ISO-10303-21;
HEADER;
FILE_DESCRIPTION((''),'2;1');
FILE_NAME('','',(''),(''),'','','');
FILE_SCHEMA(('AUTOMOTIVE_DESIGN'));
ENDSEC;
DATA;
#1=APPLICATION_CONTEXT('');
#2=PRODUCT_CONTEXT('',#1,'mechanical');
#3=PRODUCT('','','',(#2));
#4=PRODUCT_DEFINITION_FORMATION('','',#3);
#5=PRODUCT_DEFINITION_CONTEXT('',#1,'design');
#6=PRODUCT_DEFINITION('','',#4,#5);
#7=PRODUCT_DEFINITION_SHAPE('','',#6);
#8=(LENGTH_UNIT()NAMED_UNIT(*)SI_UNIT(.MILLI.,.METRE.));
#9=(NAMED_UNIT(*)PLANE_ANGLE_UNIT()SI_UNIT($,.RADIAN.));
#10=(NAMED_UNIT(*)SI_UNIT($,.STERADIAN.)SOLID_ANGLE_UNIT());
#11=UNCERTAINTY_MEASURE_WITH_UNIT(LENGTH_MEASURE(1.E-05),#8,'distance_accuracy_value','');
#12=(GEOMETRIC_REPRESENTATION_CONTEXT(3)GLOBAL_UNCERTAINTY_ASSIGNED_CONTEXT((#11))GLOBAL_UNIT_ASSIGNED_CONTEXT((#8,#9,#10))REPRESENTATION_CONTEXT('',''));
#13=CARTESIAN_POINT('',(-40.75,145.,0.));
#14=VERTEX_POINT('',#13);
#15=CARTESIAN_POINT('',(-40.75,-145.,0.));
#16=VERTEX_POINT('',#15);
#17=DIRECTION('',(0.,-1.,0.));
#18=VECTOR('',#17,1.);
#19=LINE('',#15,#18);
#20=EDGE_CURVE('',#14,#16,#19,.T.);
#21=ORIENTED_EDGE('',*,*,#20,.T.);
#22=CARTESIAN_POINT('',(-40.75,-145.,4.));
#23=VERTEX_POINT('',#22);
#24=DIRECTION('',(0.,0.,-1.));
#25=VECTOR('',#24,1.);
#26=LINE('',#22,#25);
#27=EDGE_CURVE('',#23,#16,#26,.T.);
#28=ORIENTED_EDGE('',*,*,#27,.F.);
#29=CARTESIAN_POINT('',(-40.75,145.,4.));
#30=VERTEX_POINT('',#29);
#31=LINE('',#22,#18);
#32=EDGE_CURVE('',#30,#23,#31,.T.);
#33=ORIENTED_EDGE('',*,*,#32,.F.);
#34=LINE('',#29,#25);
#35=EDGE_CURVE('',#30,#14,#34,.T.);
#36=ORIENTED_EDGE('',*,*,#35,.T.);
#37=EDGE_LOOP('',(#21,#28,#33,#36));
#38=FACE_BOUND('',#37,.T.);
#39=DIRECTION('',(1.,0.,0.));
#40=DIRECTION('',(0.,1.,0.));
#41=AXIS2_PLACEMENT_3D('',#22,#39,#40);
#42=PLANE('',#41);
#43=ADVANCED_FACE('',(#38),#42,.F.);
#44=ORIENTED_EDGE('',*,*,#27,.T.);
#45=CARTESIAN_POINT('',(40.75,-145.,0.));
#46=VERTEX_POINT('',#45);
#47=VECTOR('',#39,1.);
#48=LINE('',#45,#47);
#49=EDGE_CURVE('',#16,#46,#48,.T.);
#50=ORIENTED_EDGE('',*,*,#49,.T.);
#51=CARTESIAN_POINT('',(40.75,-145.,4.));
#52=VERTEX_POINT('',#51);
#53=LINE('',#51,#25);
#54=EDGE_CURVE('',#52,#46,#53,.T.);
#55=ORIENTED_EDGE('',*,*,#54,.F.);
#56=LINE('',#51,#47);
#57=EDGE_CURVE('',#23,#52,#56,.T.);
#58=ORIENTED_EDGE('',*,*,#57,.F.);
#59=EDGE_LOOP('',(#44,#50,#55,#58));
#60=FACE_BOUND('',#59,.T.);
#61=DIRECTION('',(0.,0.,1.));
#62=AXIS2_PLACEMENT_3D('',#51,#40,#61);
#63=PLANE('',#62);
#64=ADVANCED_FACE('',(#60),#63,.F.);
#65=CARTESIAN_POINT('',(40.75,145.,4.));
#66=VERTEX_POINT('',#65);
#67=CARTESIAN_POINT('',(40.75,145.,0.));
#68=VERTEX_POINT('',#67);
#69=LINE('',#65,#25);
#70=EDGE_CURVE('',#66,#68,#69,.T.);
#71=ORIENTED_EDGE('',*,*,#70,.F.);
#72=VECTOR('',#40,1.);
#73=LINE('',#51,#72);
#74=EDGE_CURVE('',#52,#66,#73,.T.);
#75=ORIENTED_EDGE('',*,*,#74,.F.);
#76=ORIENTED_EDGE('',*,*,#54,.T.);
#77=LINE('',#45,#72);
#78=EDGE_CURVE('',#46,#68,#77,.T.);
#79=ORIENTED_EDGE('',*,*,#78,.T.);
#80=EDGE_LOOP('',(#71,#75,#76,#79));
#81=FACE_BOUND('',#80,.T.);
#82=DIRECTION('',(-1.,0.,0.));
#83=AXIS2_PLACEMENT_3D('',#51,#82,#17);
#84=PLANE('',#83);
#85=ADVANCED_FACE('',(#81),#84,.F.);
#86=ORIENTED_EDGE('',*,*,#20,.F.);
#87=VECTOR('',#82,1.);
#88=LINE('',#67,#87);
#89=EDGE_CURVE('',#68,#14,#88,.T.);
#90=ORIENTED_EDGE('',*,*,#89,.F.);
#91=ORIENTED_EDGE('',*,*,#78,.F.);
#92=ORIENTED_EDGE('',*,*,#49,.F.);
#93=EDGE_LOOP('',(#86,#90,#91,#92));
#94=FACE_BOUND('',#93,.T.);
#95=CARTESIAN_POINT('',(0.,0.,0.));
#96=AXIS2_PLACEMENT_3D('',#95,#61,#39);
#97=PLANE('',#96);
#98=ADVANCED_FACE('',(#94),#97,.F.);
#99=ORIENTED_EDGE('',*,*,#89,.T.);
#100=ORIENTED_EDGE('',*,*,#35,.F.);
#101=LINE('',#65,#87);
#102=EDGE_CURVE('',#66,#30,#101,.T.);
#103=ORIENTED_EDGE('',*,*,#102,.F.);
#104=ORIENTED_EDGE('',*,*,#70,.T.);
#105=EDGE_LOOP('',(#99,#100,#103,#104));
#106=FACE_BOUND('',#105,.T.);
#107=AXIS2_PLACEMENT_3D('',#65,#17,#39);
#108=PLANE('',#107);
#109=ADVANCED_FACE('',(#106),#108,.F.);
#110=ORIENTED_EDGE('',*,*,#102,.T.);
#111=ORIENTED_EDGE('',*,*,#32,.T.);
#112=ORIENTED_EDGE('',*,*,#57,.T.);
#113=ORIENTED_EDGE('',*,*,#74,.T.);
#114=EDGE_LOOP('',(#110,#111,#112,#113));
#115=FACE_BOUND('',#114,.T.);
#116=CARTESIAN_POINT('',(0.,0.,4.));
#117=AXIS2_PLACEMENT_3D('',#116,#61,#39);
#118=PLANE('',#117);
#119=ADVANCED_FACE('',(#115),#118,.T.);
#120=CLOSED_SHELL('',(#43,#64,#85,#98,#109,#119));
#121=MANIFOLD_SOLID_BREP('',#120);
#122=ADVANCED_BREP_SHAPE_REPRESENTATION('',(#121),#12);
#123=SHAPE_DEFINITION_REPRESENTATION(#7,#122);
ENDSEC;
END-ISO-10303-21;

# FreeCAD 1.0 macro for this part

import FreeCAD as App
import Part
import Sketcher

V = App.Vector


def add_polygon(sketch, points):
    """Adds a closed chain of lines whose ends are joined by coincident constraints."""
    first, n = sketch.GeometryCount, len(points)
    for a, b in zip(points, points[1:] + points[:1]):
        sketch.addGeometry(Part.LineSegment(App.Vector(*a, 0), App.Vector(*b, 0)), False)
    for i in range(n):
        sketch.addConstraint(Sketcher.Constraint("Coincident", first + i, 2, first + (i + 1) % n, 1))

doc = App.newDocument("Part")
body = doc.addObject("PartDesign::Body", "Body")

sketch1 = body.newObject("Sketcher::SketchObject", "Sketch")
sketch1.AttachmentSupport = (doc.getObject("XY_Plane"), [""])
sketch1.MapMode = "FlatFace"
add_polygon(sketch1, [(-41, 145), (-41, -145), (41, -145), (41, 145)])
sketch1.addConstraint(Sketcher.Constraint("Vertical", 0))
sketch1.addConstraint(Sketcher.Constraint("Horizontal", 1))
sketch1.addConstraint(Sketcher.Constraint("Vertical", 2))
sketch1.addConstraint(Sketcher.Constraint("Horizontal", 3))
sketch1.addConstraint(Sketcher.Constraint("Symmetric", 0, 2, 2, 2, -1, 1))
sketch1.addConstraint(Sketcher.Constraint("DistanceY", 0, 2, 0, 1, 290.0))
sketch1.addConstraint(Sketcher.Constraint("DistanceX", 1, 1, 1, 2, 81.5))
pad1 = body.newObject("PartDesign::Pad", "Pad")
pad1.Profile = sketch1
pad1.Length = 4

doc.recompute()
